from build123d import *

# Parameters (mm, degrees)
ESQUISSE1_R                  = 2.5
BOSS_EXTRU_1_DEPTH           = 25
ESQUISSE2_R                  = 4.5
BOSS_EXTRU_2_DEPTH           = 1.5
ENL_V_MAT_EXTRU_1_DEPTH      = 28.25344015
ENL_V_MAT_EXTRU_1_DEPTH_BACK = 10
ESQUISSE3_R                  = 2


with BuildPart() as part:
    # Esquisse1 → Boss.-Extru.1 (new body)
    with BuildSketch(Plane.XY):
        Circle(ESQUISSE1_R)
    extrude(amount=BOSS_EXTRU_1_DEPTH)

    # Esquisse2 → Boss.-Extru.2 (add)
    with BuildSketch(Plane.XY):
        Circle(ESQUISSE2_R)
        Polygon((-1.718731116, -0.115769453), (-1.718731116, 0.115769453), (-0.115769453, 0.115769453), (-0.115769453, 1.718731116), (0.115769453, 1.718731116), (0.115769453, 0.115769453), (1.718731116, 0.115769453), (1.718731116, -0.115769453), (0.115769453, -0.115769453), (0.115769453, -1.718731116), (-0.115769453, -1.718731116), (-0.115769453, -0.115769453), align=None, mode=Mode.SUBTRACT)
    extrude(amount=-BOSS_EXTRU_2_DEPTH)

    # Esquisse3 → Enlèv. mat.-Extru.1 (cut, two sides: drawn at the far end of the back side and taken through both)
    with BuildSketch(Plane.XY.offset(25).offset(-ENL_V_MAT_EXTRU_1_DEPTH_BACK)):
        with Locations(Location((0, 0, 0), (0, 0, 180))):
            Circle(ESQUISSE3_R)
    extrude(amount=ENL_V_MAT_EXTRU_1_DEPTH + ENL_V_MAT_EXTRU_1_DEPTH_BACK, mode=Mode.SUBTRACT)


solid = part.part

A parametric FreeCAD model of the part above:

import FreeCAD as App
import Part
import Sketcher


def add_polygon(sketch, points):
    """Adds a closed chain of lines whose ends are joined by coincident constraints."""
    first, n = sketch.GeometryCount, len(points)
    for a, b in zip(points, points[1:] + points[:1]):
        sketch.addGeometry(Part.LineSegment(App.Vector(*a, 0), App.Vector(*b, 0)), False)
    for i in range(n):
        sketch.addConstraint(Sketcher.Constraint("Coincident", first + i, 2, first + (i + 1) % n, 1))

doc = App.newDocument("Part")
body = doc.addObject("PartDesign::Body", "Body")

# Sketch on XY plane
sketch1 = body.newObject("Sketcher::SketchObject", "Sketch")
sketch1.AttachmentSupport = (doc.getObject("XY_Plane"), [""])
sketch1.MapMode = "FlatFace"
sketch1.addGeometry(Part.Circle(App.Vector(0, 0, 0), App.Vector(0, 0, 1), 2.5), False)
sketch1.addConstraint([
    Sketcher.Constraint("Coincident", 0, 3, -1, 1),
    Sketcher.Constraint("Diameter", 0, 5.0),
])
pad1 = body.newObject("PartDesign::Pad", "Pad")
pad1.Profile = sketch1
pad1.Length = 25

# Sketch on XY plane
sketch2 = body.newObject("Sketcher::SketchObject", "Sketch001")
sketch2.AttachmentSupport = (doc.getObject("XY_Plane"), [""])
sketch2.MapMode = "FlatFace"
sketch2.addGeometry(Part.Circle(App.Vector(0, 0, 0), App.Vector(0, 0, 1), 4.5), False)  # 0
add_polygon(sketch2, [(-0.12, -0.12), (-1.72, -0.12), (-1.72, 0.12), (-0.12, 0.12), (-0.12, 1.72), (0.12, 1.72), (0.12, 0.12), (1.72, 0.12), (1.72, -0.12), (0.12, -0.12), (0.12, -1.72), (-0.12, -1.72)])  # lines 1-12
sketch2.addConstraint([
    Sketcher.Constraint("Horizontal", 1),
    Sketcher.Constraint("Vertical", 2),
    Sketcher.Constraint("Horizontal", 3),
    Sketcher.Constraint("Vertical", 4),
    Sketcher.Constraint("Horizontal", 5),
    Sketcher.Constraint("Vertical", 6),
    Sketcher.Constraint("Horizontal", 7),
    Sketcher.Constraint("Vertical", 8),
    Sketcher.Constraint("Horizontal", 9),
    Sketcher.Constraint("Vertical", 10),
    Sketcher.Constraint("Horizontal", 11),
    Sketcher.Constraint("Vertical", 12),
    Sketcher.Constraint("Coincident", 0, 3, -1, 1),
    Sketcher.Constraint("Symmetric", 1, 2, 7, 2, -1, 1),
    Sketcher.Constraint("Symmetric", 3, 2, 9, 2, -1, 1),
    Sketcher.Constraint("Symmetric", 5, 2, 11, 2, -1, 1),
    Sketcher.Constraint("Symmetric", 3, 2, 6, 2, -2),
    Sketcher.Constraint("Equal", 11, 2),
    Sketcher.Constraint("Equal", 9, 4),
    Sketcher.Constraint("Diameter", 0, 9.0),
    Sketcher.Constraint("DistanceX", 1, 2, 1, 1, 1.602962),
    Sketcher.Constraint("DistanceX", 5, 1, 5, 2, 0.231539),
])
pad2 = body.newObject("PartDesign::Pad", "Pad001")
pad2.Profile = sketch2
pad2.Length = 1.5
pad2.Reversed = True

# Sketch on XY plane
sketch3 = body.newObject("Sketcher::SketchObject", "Sketch002")
sketch3.AttachmentSupport = (doc.getObject("XY_Plane"), [""])
sketch3.MapMode = "FlatFace"
sketch3.AttachmentOffset = App.Placement(App.Vector(0, 0, 25), App.Rotation())
sketch3.addGeometry(Part.Circle(App.Vector(0, 0, 0), App.Vector(0, 0, 1), 2), False)
sketch3.addConstraint([
    Sketcher.Constraint("Coincident", 0, 3, -1, 1),
    Sketcher.Constraint("Diameter", 0, 4.0),
])
pocket1 = body.newObject("PartDesign::Pocket", "Pocket")
pocket1.Profile = sketch3
pocket1.Type = "TwoLengths"
pocket1.Length = 28.25344
pocket1.Length2 = 10
pocket1.Reversed = True

doc.recompute()
